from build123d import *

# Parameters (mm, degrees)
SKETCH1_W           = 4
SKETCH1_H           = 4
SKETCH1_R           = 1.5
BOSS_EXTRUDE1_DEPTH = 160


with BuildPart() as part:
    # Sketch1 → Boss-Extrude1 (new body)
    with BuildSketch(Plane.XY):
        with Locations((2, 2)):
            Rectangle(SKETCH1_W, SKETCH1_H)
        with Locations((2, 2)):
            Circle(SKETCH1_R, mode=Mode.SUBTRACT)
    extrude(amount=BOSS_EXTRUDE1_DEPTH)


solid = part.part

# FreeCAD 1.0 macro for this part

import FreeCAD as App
import Part
import Sketcher
from FreeCAD import Vector
Q = App.Units.Quantity


def add_polygon(sketch, points):
    """Adds a closed chain of lines whose ends are joined by coincident constraints."""
    first, n = sketch.GeometryCount, len(points)
    for a, b in zip(points, points[1:] + points[:1]):
        sketch.addGeometry(Part.LineSegment(App.Vector(*a, 0), App.Vector(*b, 0)), False)
    for i in range(n):
        sketch.addConstraint(Sketcher.Constraint("Coincident", first + i, 2, first + (i + 1) % n, 1))

doc = App.newDocument("Part")
body = doc.addObject("PartDesign::Body", "Body")

sketch1 = body.newObject("Sketcher::SketchObject", "Sketch")
sketch1.AttachmentSupport = (doc.getObject("XY_Plane"), [""])
sketch1.MapMode = "FlatFace"
add_polygon(sketch1, [(0, 4), (0, 0), (4, 0), (4, 4)])
sketch1.addGeometry(Part.Circle(Vector(2, 2, 0), Vector(0, 0, 1), 1.5), False)
sketch1.addConstraint([
    Sketcher.Constraint("Vertical", 0),
    Sketcher.Constraint("Horizontal", 1),
    Sketcher.Constraint("Vertical", 2),
    Sketcher.Constraint("Horizontal", 3),
    Sketcher.Constraint("Coincident", 0, 2, -1, 1),
    Sketcher.Constraint("Equal", 3, 0),
    Sketcher.Constraint("Diameter", 4, Q("3 mm")),
    Sketcher.Constraint("DistanceX", 1, 1, 1, 2, Q("4 mm")),
    Sketcher.Constraint("DistanceX", -1, 1, 4, 3, Q("2 mm")),
    Sketcher.Constraint("DistanceY", -1, 1, 4, 3, Q("2 mm")),
])
pad1 = body.newObject("PartDesign::Pad", "Pad")
pad1.Profile = sketch1
pad1.Length = 160

doc.recompute()
